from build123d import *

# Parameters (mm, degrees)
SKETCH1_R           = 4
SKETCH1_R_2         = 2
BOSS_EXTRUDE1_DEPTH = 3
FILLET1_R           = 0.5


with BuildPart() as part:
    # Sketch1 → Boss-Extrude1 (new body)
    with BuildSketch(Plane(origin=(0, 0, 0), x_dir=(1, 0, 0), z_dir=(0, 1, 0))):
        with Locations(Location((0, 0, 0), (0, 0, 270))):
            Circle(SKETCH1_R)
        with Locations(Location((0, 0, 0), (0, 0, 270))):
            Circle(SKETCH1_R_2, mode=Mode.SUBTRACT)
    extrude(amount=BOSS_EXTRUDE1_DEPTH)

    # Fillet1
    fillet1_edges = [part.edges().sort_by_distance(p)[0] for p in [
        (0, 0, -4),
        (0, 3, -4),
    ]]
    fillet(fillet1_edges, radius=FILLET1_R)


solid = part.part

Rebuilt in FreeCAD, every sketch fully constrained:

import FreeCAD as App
import Part
import Sketcher


def edges_at(feature, points):
    """Names of the edges that pass closest to the given points."""
    edges = feature.Shape.Edges
    near = lambda p: min(range(len(edges)), key=lambda i: edges[i].distToShape(Part.Vertex(*p))[0])
    return sorted({f"Edge{near(p) + 1}" for p in points})

doc = App.newDocument("Part")
params = doc.addObject("Spreadsheet::Sheet", "Params")
for row, (alias, value) in enumerate([
    ("sketch1_diameter", "8 mm"),
    ("sketch1_diameter2", "4 mm"),
    ("pad1_length", "3 mm"),
    ("fillet_radius", "0.5 mm"),
], start=1):
    params.set(f"A{row}", alias)
    params.set(f"B{row}", "=" + value)
    params.setAlias(f"B{row}", alias)

body = doc.addObject("PartDesign::Body", "Body")

sketch1 = body.newObject("Sketcher::SketchObject", "Sketch")
sketch1.AttachmentSupport = (doc.getObject("XZ_Plane"), [""])
sketch1.MapMode = "FlatFace"
sketch1.addGeometry([
    Part.Circle(App.Vector(0, 0, 0), App.Vector(0, 0, 1), 4),
    Part.Circle(App.Vector(0, 0, 0), App.Vector(0, 0, 1), 2),
], False)
sketch1.addConstraint([
    Sketcher.Constraint("Coincident", 0, 3, -1, 1),
    Sketcher.Constraint("Coincident", 1, 3, -1, 1),
    Sketcher.Constraint("Diameter", 0, 8.0),
    Sketcher.Constraint("Diameter", 1, 4.0),
])
sketch1.setExpression("Constraints[2]", "Params.sketch1_diameter")
sketch1.setExpression("Constraints[3]", "Params.sketch1_diameter2")
pad1 = body.newObject("PartDesign::Pad", "Pad")
pad1.Profile = sketch1
pad1.setExpression("Length", "Params.pad1_length")
pad1.Reversed = True
doc.recompute()

fillet = body.newObject("PartDesign::Fillet", "Fillet")
fillet.Base = (pad1, edges_at(pad1, [(0, 0, -4), (0, 3, -4)]))
fillet.setExpression("Radius", "Params.fillet_radius")

doc.recompute()
